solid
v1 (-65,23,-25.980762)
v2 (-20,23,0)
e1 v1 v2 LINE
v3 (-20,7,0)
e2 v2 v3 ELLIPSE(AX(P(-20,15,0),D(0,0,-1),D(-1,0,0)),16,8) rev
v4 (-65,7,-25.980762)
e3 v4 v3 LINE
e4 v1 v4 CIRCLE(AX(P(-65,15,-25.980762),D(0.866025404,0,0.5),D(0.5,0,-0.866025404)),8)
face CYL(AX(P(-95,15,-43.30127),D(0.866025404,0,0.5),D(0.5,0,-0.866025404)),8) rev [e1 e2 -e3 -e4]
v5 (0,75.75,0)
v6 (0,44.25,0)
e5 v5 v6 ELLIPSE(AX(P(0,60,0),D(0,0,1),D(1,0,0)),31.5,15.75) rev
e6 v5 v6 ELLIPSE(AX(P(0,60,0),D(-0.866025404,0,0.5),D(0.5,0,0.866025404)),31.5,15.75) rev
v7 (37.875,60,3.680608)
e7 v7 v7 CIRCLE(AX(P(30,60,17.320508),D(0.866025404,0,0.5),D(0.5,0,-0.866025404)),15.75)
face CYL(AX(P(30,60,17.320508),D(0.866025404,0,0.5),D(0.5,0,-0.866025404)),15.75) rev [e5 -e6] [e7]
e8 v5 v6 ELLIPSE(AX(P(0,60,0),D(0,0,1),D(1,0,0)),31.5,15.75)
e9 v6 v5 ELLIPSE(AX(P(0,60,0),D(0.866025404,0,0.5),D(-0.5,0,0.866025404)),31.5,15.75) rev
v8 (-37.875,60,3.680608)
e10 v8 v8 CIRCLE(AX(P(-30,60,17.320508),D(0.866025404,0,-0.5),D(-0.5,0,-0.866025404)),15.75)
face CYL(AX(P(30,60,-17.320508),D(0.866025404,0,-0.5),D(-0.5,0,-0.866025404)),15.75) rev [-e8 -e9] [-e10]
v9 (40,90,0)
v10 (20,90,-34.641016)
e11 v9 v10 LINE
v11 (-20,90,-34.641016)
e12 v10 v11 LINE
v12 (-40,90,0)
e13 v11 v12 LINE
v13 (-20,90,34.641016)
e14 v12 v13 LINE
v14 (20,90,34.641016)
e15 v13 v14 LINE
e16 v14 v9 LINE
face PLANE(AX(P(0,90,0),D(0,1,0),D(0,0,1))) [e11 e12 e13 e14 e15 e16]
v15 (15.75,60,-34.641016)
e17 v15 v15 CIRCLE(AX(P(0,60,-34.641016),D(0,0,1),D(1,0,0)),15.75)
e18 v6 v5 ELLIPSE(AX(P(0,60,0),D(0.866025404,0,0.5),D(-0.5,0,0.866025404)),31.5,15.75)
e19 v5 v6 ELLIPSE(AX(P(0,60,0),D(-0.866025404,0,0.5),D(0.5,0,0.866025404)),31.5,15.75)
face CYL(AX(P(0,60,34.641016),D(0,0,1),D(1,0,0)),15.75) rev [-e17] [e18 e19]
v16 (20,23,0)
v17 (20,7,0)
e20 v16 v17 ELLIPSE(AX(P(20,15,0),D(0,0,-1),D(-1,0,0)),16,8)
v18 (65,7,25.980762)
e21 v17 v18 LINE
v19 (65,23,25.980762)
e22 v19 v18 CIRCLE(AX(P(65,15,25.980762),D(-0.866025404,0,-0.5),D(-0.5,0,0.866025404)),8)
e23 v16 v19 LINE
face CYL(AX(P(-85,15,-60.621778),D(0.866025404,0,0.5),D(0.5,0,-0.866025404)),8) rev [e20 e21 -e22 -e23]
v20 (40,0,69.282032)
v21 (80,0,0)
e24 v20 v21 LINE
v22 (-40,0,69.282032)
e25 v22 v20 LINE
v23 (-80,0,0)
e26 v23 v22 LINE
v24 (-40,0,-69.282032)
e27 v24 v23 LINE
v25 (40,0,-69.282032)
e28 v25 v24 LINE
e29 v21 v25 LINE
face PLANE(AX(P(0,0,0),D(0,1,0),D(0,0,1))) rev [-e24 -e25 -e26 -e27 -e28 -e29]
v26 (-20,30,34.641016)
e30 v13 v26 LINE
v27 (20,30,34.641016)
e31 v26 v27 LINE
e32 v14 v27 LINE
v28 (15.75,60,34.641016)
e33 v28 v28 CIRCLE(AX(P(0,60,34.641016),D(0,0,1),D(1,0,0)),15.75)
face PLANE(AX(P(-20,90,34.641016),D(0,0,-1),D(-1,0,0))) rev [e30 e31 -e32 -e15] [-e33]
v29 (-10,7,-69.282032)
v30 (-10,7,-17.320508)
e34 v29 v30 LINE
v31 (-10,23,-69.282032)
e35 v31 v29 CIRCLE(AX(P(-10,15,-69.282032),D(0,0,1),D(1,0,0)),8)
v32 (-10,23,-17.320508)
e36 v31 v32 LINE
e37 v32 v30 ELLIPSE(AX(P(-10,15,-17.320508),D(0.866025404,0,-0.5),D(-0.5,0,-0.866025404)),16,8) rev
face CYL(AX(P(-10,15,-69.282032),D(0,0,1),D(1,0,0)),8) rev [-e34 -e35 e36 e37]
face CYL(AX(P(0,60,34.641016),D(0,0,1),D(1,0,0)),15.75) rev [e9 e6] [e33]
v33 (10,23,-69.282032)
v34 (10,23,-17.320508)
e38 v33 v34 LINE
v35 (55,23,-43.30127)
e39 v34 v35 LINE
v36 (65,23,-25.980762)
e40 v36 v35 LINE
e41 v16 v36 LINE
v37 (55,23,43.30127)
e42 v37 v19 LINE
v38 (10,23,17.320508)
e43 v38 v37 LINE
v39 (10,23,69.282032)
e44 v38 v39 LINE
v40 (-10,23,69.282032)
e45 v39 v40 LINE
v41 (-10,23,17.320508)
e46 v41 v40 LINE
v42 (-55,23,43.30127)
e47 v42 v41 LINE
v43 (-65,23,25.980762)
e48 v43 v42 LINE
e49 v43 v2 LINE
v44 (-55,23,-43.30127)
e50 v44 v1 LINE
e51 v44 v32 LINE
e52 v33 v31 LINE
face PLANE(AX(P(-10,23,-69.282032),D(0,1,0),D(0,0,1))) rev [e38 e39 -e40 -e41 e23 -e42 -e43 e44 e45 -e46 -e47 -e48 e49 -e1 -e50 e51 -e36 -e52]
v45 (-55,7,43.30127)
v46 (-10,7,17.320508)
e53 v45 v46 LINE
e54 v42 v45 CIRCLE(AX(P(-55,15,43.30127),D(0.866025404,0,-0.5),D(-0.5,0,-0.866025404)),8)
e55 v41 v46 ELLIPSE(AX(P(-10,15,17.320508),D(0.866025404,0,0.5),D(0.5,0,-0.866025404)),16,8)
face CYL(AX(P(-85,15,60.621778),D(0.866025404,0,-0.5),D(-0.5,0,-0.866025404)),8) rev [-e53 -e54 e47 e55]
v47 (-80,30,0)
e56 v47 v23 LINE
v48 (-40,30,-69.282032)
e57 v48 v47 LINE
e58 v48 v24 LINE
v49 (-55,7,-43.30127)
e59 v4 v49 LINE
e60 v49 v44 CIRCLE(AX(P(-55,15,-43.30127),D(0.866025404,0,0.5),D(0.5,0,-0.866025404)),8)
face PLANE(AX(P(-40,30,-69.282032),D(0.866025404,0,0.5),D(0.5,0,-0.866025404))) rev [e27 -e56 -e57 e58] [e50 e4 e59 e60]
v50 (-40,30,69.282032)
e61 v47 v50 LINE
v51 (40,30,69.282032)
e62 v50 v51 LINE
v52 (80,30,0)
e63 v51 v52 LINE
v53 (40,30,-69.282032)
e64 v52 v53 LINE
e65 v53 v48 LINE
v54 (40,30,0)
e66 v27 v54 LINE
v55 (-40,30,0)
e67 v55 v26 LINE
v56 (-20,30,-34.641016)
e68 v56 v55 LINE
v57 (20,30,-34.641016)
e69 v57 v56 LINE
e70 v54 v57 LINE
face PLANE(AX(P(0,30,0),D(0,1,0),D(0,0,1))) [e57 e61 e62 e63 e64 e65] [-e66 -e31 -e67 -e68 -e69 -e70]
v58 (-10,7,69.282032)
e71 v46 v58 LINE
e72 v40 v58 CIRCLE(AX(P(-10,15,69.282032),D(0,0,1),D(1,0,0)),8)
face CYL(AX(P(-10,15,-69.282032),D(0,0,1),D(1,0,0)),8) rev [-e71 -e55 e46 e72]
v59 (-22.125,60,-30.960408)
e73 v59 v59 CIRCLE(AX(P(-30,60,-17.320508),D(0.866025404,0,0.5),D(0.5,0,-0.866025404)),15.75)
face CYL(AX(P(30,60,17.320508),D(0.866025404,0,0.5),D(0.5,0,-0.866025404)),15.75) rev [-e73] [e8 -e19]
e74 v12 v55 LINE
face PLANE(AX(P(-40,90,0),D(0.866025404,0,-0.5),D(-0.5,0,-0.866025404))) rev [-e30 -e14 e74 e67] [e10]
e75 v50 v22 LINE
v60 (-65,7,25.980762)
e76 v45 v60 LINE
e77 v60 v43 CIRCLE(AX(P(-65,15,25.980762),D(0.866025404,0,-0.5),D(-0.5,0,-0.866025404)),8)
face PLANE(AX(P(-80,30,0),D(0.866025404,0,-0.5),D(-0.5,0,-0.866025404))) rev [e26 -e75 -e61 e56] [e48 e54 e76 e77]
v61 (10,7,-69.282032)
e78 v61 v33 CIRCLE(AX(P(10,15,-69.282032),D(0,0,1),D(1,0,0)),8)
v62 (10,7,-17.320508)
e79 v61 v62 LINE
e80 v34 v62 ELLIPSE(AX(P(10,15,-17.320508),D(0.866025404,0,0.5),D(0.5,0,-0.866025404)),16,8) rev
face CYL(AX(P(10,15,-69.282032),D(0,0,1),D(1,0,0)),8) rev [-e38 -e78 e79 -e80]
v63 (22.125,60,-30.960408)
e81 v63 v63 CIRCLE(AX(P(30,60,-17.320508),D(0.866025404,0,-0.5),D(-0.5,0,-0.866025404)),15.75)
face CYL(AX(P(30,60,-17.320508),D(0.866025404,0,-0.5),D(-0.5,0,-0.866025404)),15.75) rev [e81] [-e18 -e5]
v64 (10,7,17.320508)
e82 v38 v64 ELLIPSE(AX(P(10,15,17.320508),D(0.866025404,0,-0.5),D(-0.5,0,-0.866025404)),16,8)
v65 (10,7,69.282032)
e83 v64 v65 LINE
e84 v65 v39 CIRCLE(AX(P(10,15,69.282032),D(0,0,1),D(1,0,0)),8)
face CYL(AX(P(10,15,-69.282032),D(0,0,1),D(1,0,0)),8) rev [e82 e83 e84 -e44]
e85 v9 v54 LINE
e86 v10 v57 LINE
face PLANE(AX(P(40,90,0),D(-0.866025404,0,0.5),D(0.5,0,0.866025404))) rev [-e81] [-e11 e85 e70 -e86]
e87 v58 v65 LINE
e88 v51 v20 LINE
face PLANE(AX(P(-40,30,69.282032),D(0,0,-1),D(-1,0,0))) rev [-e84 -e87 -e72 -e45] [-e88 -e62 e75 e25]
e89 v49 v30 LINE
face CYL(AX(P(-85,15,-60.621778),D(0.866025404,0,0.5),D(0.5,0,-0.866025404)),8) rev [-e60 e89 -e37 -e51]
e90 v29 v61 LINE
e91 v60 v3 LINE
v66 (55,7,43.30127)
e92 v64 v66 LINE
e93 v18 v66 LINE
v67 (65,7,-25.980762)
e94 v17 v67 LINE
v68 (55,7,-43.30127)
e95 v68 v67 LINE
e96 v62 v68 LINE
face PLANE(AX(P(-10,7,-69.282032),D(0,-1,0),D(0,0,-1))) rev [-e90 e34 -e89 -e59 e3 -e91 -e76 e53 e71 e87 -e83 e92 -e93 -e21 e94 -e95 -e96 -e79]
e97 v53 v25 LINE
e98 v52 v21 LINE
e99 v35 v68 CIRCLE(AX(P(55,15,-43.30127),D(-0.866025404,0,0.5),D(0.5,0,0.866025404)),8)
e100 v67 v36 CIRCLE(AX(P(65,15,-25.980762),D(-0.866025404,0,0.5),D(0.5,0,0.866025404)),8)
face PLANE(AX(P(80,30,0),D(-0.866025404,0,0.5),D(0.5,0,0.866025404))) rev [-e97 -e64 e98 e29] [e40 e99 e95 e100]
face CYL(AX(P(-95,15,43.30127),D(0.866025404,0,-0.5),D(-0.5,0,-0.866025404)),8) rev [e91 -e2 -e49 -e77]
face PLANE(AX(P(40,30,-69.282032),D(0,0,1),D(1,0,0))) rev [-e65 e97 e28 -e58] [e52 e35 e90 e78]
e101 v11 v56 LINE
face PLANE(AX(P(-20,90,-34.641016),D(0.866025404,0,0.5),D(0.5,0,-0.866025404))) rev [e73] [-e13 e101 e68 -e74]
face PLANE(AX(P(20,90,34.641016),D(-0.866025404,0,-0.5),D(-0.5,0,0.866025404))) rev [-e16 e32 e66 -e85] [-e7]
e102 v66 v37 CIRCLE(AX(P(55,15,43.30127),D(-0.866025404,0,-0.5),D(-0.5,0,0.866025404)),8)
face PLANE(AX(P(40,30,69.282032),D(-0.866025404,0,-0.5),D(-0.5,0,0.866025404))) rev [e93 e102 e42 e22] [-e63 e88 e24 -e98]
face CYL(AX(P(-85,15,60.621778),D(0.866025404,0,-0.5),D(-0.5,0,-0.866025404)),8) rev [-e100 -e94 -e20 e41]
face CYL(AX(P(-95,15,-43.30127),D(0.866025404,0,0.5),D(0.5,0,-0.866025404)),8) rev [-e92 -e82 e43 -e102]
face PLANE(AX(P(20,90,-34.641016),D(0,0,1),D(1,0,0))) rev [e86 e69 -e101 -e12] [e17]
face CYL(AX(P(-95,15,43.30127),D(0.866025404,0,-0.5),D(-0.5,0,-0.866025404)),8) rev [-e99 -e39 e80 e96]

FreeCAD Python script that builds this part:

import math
import FreeCAD as App
import Part
import Sketcher

V = App.Vector
Q = App.Units.Quantity


def add_polygon(sketch, points):
    """Adds a closed chain of lines whose ends are joined by coincident constraints."""
    first, n = sketch.GeometryCount, len(points)
    for a, b in zip(points, points[1:] + points[:1]):
        sketch.addGeometry(Part.LineSegment(App.Vector(*a, 0), App.Vector(*b, 0)), False)
    for i in range(n):
        sketch.addConstraint(Sketcher.Constraint("Coincident", first + i, 2, first + (i + 1) % n, 1))

doc = App.newDocument("Part")
body = doc.addObject("PartDesign::Body", "Body")

# Sketch on XZ plane
sketch1 = body.newObject("Sketcher::SketchObject", "Sketch")
sketch1.AttachmentSupport = (doc.getObject("XZ_Plane"), [""])
sketch1.MapMode = "FlatFace"
add_polygon(sketch1, [(40, 69), (80, 0), (40, -69), (-40, -69), (-80, 0), (-40, 69)])  # lines 0-5
sketch1.addConstraint([
    Sketcher.Constraint("Horizontal", 2),
    Sketcher.Constraint("Horizontal", 5),
    Sketcher.Constraint("Symmetric", 0, 2, 3, 2, -1, 1),
    Sketcher.Constraint("Symmetric", 1, 2, 4, 2, -1, 1),
    Sketcher.Constraint("PointOnObject", 0, 2, -1),
    Sketcher.Constraint("Parallel", 0, 3),
    Sketcher.Constraint("Vertical", 2, 2, 4, 2),
    Sketcher.Constraint("DistanceX", 2, 2, 2, 1, 80.0),
    Sketcher.Constraint("Angle", 0, Q("-60 deg")),
    Sketcher.Constraint("Distance", 0, 80.0),
])
pad1 = body.newObject("PartDesign::Pad", "Pad")
pad1.Profile = sketch1
pad1.Length = 30
pad1.Reversed = True

# Sketch on XZ plane
sketch2 = body.newObject("Sketcher::SketchObject", "Sketch001")
sketch2.AttachmentSupport = (doc.getObject("XZ_Plane"), [""])
sketch2.MapMode = "FlatFace"
sketch2.AttachmentOffset = App.Placement(V(0, 0, -30), App.Rotation())
add_polygon(sketch2, [(20, 35), (40, 0), (20, -35), (-20, -35), (-40, 0), (-20, 35)])  # lines 0-5
sketch2.addConstraint([
    Sketcher.Constraint("Horizontal", 2),
    Sketcher.Constraint("Horizontal", 5),
    Sketcher.Constraint("Symmetric", 0, 2, 3, 2, -1, 1),
    Sketcher.Constraint("Symmetric", 1, 2, 4, 2, -1, 1),
    Sketcher.Constraint("PointOnObject", 0, 2, -1),
    Sketcher.Constraint("Parallel", 0, 3),
    Sketcher.Constraint("Vertical", 2, 2, 4, 2),
    Sketcher.Constraint("DistanceX", 2, 2, 2, 1, 40.0),
    Sketcher.Constraint("Angle", 0, Q("-60 deg")),
    Sketcher.Constraint("Distance", 0, 40.0),
])
pad2 = body.newObject("PartDesign::Pad", "Pad001")
pad2.Profile = sketch2
pad2.Length = 60
pad2.Reversed = True

# Sketch on XY plane
sketch3 = body.newObject("Sketcher::SketchObject", "Sketch002")
sketch3.AttachmentSupport = (doc.getObject("XY_Plane"), [""])
sketch3.MapMode = "FlatFace"
sketch3.AttachmentOffset = App.Placement(V(0, 0, 34.641016), App.Rotation())
sketch3.addGeometry(Part.Circle(V(0, 60, 0), V(0, 0, 1), 16), False)
sketch3.addConstraint([
    Sketcher.Constraint("PointOnObject", 0, 3, -2),
    Sketcher.Constraint("Diameter", 0, 31.5),
    Sketcher.Constraint("DistanceY", -1, 1, 0, 3, 60.0),
])
doc.recompute()
hole = body.newObject("PartDesign::Hole", "Hole")
hole.Profile = sketch3
hole.ThreadType = "None"
hole.Diameter = 31.5
hole.DepthType = "ThroughAll"
doc.recompute()

polarpattern = body.newObject("PartDesign::PolarPattern", "PolarPattern")
polarpattern.Originals = [hole]
polarpattern.Axis = (doc.getObject("Y_Axis"), [""])
polarpattern.Angle = 360
polarpattern.Occurrences = 6
body.Tip = polarpattern

# Sketch on XY plane
sketch4 = body.newObject("Sketcher::SketchObject", "Sketch003")
sketch4.AttachmentSupport = (doc.getObject("XY_Plane"), [""])
sketch4.MapMode = "FlatFace"
sketch4.AttachmentOffset = App.Placement(V(0, 0, 69.282032), App.Rotation())
sketch4.addGeometry([
    Part.LineSegment(V(10, 23, 0), V(-10, 23, 0)),
    Part.ArcOfCircle(Part.Circle(V(-10, 15, 0), V(0, 0, 1), 8), math.radians(90), math.radians(270)),
    Part.LineSegment(V(-10, 7, 0), V(10, 7, 0)),
    Part.ArcOfCircle(Part.Circle(V(10, 15, 0), V(0, 0, 1), 8), math.radians(-90), math.radians(90)),
], False)
sketch4.addConstraint([
    Sketcher.Constraint("Tangent", 0, 2, 1, 1),
    Sketcher.Constraint("Tangent", 1, 2, 2, 1),
    Sketcher.Constraint("Tangent", 2, 2, 3, 1),
    Sketcher.Constraint("Tangent", 3, 2, 0, 1),
    Sketcher.Constraint("Horizontal", 0),
    Sketcher.Constraint("Horizontal", 2),
    Sketcher.Constraint("Radius", 1, 8.0),
    Sketcher.Constraint("DistanceX", 0, 2, 0, 1, 20.0),
    Sketcher.Constraint("DistanceX", 1, 3, -1, 1, 10.0),
    Sketcher.Constraint("DistanceY", -1, 1, 1, 3, 15.0),
])
pocket1 = body.newObject("PartDesign::Pocket", "Pocket")
pocket1.Profile = sketch4
pocket1.Length = 369.151195
pocket1.Midplane = True
doc.recompute()

polarpattern2 = body.newObject("PartDesign::PolarPattern", "PolarPattern001")
polarpattern2.Originals = [pocket1]
polarpattern2.Axis = (doc.getObject("Y_Axis"), [""])
polarpattern2.Angle = 360
polarpattern2.Occurrences = 6
body.Tip = polarpattern2

doc.recompute()
